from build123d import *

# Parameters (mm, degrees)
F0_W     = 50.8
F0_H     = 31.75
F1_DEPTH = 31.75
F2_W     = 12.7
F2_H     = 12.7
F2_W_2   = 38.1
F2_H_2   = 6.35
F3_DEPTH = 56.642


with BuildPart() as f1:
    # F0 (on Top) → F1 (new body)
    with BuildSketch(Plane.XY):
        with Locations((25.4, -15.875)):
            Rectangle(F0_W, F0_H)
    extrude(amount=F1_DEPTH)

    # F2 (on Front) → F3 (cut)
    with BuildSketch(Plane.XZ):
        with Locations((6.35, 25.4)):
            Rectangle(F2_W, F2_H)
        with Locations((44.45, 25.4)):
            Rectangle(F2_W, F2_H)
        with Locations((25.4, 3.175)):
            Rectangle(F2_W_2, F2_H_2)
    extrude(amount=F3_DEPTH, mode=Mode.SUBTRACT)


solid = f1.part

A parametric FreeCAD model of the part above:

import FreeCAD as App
import Part
import Sketcher

V = App.Vector
Q = App.Units.Quantity


def add_polygon(sketch, points):
    """Adds a closed chain of lines whose ends are joined by coincident constraints."""
    first, n = sketch.GeometryCount, len(points)
    for a, b in zip(points, points[1:] + points[:1]):
        sketch.addGeometry(Part.LineSegment(App.Vector(*a, 0), App.Vector(*b, 0)), False)
    for i in range(n):
        sketch.addConstraint(Sketcher.Constraint("Coincident", first + i, 2, first + (i + 1) % n, 1))

doc = App.newDocument("Part")
body = doc.addObject("PartDesign::Body", "Body")

sketch1 = doc.addObject("Sketcher::SketchObject", "Sketch")
body.addObject(sketch1)
sketch1.AttachmentSupport = (doc.XY_Plane, [""])
sketch1.MapMode = "FlatFace"
add_polygon(sketch1, [(0, 0), (0, -32), (51, -32), (51, 0)])
sketch1.addConstraint([
    Sketcher.Constraint("Vertical", 0),
    Sketcher.Constraint("Horizontal", 1),
    Sketcher.Constraint("Vertical", 2),
    Sketcher.Constraint("Horizontal", 3),
    Sketcher.Constraint("Coincident", 3, 2, -1, 1),
    Sketcher.Constraint("DistanceX", 1, 1, 1, 2, Q("2 in")),
    Sketcher.Constraint("DistanceY", 0, 2, 0, 1, Q("1.25 in")),
])
pad1 = doc.addObject("PartDesign::Pad", "Pad")
body.addObject(pad1)
pad1.Profile = sketch1
pad1.Length = Q("1.25 in")

sketch2 = doc.addObject("Sketcher::SketchObject", "Sketch001")
body.addObject(sketch2)
sketch2.AttachmentSupport = (doc.XZ_Plane, [""])
sketch2.MapMode = "FlatFace"
add_polygon(sketch2, [(0, 32), (0, 19), (13, 19), (13, 32)])
add_polygon(sketch2, [(38, 32), (38, 19), (51, 19), (51, 32)])
add_polygon(sketch2, [(6, 6), (6, 0), (44, 0), (44, 6)])
sketch2.addConstraint([
    Sketcher.Constraint("Vertical", 0),
    Sketcher.Constraint("Horizontal", 1),
    Sketcher.Constraint("Vertical", 2),
    Sketcher.Constraint("Horizontal", 3),
    Sketcher.Constraint("Vertical", 4),
    Sketcher.Constraint("Horizontal", 5),
    Sketcher.Constraint("Vertical", 6),
    Sketcher.Constraint("Horizontal", 7),
    Sketcher.Constraint("Vertical", 8),
    Sketcher.Constraint("Horizontal", 9),
    Sketcher.Constraint("Vertical", 10),
    Sketcher.Constraint("Horizontal", 11),
    Sketcher.Constraint("PointOnObject", 0, 2, -2),
    Sketcher.Constraint("PointOnObject", 8, 2, -1),
    Sketcher.Constraint("Horizontal", 1, 2, 4, 2),
    Sketcher.Constraint("Horizontal", 3, 2, 6, 2),
    Sketcher.Constraint("Equal", 3, 5),
    Sketcher.Constraint("Equal", 7, 0),
    Sketcher.Constraint("DistanceX", 1, 1, 1, 2, Q("0.5 in")),
    Sketcher.Constraint("DistanceX", 9, 1, 9, 2, Q("1.5 in")),
    Sketcher.Constraint("DistanceX", -1, 1, 5, 2, Q("2 in")),
    Sketcher.Constraint("DistanceY", 10, 2, 6, 2, Q("1 in")),
    Sketcher.Constraint("DistanceY", 8, 2, 8, 1, Q("0.25 in")),
    Sketcher.Constraint("DistanceX", -1, 1, 8, 2, Q("0.25 in")),
])
pocket1 = doc.addObject("PartDesign::Pocket", "Pocket")
body.addObject(pocket1)
pocket1.Profile = sketch2
pocket1.Length = Q("2.23 in")
pocket1.Reversed = True

doc.recompute()
